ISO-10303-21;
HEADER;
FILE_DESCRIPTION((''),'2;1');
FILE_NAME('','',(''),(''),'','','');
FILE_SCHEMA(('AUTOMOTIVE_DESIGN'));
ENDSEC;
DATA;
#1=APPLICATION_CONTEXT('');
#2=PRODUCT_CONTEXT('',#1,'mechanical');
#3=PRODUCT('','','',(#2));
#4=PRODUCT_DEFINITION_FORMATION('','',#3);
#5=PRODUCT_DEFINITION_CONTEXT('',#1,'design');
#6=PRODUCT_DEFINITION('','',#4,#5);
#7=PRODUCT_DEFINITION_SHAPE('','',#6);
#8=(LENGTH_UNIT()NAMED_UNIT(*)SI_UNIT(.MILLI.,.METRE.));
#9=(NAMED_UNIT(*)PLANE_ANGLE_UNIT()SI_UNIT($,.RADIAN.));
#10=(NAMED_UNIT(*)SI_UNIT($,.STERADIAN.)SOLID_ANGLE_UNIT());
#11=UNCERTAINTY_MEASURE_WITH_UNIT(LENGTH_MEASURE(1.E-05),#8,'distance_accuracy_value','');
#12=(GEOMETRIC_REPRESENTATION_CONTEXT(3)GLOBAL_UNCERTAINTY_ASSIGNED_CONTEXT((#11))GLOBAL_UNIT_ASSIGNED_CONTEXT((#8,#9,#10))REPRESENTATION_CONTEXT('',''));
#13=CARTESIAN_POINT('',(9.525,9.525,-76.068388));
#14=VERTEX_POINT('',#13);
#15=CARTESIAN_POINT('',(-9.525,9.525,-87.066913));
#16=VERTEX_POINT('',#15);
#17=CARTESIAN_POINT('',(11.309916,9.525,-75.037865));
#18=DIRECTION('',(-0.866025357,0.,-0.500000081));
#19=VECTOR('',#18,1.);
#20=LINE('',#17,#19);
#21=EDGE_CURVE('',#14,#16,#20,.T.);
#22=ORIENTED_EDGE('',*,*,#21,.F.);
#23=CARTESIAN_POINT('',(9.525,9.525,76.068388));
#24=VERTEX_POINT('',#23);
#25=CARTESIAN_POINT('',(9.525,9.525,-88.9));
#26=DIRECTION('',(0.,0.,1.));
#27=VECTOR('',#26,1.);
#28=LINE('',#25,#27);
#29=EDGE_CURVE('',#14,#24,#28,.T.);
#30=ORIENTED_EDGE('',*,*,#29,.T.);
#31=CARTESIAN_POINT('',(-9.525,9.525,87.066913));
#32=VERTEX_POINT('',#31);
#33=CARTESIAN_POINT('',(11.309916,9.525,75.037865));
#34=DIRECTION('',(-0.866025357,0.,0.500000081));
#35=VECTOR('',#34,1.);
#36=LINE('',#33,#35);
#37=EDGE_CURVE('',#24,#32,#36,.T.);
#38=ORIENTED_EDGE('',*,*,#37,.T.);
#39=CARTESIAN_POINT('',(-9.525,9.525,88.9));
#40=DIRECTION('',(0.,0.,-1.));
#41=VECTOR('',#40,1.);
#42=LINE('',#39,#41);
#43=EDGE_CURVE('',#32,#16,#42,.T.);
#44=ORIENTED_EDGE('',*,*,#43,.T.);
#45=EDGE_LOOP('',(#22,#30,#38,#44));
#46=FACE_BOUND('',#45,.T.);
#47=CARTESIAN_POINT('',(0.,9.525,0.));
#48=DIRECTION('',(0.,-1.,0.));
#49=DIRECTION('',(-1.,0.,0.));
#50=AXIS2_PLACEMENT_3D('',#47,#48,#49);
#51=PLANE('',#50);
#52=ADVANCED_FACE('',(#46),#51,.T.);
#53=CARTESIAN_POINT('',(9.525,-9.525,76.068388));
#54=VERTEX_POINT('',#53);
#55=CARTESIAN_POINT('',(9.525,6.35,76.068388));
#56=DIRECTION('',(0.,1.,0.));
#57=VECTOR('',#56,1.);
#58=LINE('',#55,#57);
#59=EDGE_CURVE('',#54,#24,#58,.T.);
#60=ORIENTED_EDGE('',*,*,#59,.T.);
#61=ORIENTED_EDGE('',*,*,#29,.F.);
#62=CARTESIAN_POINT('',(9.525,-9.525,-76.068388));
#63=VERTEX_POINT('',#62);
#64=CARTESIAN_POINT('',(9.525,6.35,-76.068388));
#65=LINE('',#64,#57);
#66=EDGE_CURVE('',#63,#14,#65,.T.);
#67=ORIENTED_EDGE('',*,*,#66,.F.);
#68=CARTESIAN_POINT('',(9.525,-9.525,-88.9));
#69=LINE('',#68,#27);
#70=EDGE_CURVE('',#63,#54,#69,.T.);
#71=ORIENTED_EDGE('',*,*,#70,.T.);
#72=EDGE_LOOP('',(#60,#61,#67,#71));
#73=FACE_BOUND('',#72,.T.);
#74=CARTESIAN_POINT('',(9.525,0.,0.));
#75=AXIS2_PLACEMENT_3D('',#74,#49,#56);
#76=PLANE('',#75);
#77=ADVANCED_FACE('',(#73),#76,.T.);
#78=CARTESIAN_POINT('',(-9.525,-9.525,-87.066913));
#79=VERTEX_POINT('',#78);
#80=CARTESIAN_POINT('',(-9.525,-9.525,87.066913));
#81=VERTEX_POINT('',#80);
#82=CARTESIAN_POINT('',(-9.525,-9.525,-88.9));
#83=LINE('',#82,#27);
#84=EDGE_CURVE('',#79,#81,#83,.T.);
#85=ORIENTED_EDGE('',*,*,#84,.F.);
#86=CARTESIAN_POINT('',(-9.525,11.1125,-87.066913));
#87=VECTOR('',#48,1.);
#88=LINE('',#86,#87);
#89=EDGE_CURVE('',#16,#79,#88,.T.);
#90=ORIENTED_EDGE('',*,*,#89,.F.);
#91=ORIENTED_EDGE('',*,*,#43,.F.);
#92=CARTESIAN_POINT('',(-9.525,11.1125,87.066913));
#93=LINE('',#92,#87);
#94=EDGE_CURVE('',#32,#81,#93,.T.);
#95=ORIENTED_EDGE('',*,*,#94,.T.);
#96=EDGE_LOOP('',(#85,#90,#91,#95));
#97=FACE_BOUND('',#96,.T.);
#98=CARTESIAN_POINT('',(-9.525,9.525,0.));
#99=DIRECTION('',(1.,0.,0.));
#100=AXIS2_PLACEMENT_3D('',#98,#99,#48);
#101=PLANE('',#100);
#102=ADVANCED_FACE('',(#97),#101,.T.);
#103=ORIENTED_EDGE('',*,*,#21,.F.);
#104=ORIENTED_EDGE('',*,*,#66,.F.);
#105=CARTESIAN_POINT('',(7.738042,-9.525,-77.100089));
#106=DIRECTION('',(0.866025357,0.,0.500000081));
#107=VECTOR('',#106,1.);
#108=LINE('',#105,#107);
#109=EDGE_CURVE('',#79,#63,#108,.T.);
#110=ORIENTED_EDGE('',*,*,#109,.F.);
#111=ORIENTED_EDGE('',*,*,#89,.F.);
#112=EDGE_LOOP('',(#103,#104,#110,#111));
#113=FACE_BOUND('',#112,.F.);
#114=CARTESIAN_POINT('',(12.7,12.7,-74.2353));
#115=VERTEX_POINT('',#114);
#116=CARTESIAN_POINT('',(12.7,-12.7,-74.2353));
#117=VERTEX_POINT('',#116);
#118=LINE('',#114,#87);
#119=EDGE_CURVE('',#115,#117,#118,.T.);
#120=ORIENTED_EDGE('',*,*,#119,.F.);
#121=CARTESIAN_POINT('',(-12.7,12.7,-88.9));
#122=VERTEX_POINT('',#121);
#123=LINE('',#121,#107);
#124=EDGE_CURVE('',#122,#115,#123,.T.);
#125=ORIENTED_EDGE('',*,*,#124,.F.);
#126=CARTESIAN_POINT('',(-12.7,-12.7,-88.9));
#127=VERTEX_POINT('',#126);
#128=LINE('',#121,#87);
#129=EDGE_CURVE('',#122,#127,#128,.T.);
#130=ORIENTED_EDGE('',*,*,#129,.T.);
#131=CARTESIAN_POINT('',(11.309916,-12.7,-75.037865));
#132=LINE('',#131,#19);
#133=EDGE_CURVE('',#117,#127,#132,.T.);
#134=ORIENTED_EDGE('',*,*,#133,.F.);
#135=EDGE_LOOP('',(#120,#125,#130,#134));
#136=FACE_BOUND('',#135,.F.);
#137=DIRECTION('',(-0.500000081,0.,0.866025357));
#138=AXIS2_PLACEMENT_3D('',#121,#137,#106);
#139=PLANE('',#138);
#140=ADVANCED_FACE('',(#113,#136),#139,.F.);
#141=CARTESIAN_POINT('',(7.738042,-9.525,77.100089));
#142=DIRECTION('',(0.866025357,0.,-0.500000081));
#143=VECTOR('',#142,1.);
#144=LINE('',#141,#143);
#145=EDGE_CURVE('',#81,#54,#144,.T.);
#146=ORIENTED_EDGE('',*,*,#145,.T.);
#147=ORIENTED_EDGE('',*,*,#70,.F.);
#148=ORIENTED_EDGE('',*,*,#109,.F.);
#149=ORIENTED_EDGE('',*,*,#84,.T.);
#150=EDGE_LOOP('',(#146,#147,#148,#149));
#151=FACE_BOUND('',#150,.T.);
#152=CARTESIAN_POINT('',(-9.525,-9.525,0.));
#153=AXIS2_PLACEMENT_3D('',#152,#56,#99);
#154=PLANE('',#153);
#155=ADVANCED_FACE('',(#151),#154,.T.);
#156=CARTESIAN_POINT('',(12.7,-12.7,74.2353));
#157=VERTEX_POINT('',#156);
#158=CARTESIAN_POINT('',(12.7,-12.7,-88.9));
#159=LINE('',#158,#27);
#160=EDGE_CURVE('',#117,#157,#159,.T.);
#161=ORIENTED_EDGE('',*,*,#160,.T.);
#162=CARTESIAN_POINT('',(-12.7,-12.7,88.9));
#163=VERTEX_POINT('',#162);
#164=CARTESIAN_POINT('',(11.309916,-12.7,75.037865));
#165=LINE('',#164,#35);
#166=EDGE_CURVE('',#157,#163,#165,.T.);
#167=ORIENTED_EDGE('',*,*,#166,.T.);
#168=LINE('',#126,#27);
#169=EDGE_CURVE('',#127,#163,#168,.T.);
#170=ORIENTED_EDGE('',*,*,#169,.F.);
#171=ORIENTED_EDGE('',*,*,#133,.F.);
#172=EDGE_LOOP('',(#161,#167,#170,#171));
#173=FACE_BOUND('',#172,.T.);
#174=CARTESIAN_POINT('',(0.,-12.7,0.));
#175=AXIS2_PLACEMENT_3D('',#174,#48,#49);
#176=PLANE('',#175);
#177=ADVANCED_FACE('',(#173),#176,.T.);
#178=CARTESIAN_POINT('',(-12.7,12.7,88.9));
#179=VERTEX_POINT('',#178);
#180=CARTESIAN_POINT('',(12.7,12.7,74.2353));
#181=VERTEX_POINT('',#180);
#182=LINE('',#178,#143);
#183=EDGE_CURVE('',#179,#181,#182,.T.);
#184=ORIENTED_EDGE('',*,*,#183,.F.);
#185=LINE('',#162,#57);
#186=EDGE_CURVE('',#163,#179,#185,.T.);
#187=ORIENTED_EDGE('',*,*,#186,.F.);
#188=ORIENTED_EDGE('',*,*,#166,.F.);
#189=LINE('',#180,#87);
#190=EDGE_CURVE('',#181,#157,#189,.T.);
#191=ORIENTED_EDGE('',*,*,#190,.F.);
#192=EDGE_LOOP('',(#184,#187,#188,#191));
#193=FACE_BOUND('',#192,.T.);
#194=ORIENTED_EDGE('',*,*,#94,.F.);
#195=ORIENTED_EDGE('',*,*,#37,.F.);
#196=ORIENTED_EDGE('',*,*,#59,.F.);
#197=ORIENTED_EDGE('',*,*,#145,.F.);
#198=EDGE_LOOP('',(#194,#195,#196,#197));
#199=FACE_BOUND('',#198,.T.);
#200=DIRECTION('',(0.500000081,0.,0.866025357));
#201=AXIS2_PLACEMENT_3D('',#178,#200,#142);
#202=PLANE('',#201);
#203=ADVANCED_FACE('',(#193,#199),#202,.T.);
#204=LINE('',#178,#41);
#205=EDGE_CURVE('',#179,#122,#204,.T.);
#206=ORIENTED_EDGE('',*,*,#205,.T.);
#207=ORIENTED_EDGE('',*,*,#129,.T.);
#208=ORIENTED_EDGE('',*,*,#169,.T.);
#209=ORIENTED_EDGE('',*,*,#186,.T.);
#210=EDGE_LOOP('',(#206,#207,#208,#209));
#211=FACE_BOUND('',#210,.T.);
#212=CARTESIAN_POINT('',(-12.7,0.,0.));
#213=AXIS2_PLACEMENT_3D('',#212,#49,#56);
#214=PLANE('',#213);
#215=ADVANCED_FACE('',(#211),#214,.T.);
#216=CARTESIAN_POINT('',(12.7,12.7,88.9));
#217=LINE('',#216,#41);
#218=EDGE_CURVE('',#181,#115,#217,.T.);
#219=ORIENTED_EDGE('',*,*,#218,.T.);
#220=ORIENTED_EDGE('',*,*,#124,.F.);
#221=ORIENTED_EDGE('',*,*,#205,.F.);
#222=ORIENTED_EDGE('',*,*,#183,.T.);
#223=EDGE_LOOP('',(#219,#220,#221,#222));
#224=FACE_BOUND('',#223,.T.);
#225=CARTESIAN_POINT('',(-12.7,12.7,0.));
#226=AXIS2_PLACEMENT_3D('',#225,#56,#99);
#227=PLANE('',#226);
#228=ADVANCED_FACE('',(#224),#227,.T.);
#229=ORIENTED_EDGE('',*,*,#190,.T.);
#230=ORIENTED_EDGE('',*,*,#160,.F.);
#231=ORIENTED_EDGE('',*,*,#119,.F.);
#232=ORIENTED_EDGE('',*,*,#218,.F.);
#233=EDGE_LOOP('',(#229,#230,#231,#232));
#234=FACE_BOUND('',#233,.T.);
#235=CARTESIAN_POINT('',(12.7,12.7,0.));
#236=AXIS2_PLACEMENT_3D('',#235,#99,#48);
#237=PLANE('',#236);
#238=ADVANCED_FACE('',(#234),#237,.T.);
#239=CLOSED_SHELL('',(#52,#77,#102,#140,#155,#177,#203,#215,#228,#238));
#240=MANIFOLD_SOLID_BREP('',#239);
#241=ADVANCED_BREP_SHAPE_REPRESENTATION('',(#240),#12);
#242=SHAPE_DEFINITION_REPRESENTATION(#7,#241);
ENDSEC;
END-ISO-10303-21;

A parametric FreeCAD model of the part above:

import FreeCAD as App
import Part
import Sketcher
from FreeCAD import Vector
Q = App.Units.Quantity

doc = App.newDocument("Part")
params = doc.addObject("Spreadsheet::Sheet", "Params")
for row, (alias, value) in enumerate([
    ("sketch1_width", "1 in"),
    ("pad1_length", "7 in"),
    ("sketch2_width", "1 in"),
], start=1):
    params.set(f"A{row}", alias)
    params.set(f"B{row}", "=" + value)
    params.setAlias(f"B{row}", alias)

body = doc.addObject("PartDesign::Body", "Body")

# Sketch on XY plane
sketch1 = body.newObject("Sketcher::SketchObject", "Sketch")
sketch1.AttachmentSupport = (doc.getObject("XY_Plane"), [""])
sketch1.MapMode = "FlatFace"
sketch1.addGeometry([
    Part.LineSegment(Vector(-13, 13, 0), Vector(-13, -13, 0)),  # 0
    Part.LineSegment(Vector(-13, -13, 0), Vector(13, -13, 0)),  # 1
    Part.LineSegment(Vector(13, -13, 0), Vector(13, 13, 0)),  # 2
    Part.LineSegment(Vector(13, 13, 0), Vector(-13, 13, 0)),  # 3
    Part.LineSegment(Vector(-10, 10, 0), Vector(10, 10, 0)),  # 4
    Part.LineSegment(Vector(10, 10, 0), Vector(10, -10, 0)),  # 5
    Part.LineSegment(Vector(10, -10, 0), Vector(-10, -10, 0)),  # 6
    Part.LineSegment(Vector(-10, -10, 0), Vector(-10, 10, 0)),  # 7
], False)
sketch1.addConstraint([
    Sketcher.Constraint("Coincident", 0, 2, 1, 1),
    Sketcher.Constraint("Coincident", 1, 2, 2, 1),
    Sketcher.Constraint("Coincident", 2, 2, 3, 1),
    Sketcher.Constraint("Coincident", 3, 2, 0, 1),
    Sketcher.Constraint("Coincident", 4, 2, 5, 1),
    Sketcher.Constraint("Coincident", 5, 2, 6, 1),
    Sketcher.Constraint("Coincident", 6, 2, 7, 1),
    Sketcher.Constraint("Coincident", 7, 2, 4, 1),
    Sketcher.Constraint("Vertical", 0),
    Sketcher.Constraint("Horizontal", 1),
    Sketcher.Constraint("Vertical", 2),
    Sketcher.Constraint("Horizontal", 3),
    Sketcher.Constraint("Horizontal", 4),
    Sketcher.Constraint("Vertical", 5),
    Sketcher.Constraint("Horizontal", 6),
    Sketcher.Constraint("Vertical", 7),
    Sketcher.Constraint("Symmetric", 0, 2, 2, 2, -1, 1),
    Sketcher.Constraint("Symmetric", 4, 2, 6, 2, -1, 1),
    Sketcher.Constraint("Equal", 3, 0),
    Sketcher.Constraint("Equal", 6, 5),
    Sketcher.Constraint("DistanceX", 1, 1, 1, 2, Q("1 in")),
    Sketcher.Constraint("DistanceX", 4, 2, 2, 2, Q("0.125 in")),
])
sketch1.setExpression("Constraints[20]", "Params.sketch1_width")
pad1 = body.newObject("PartDesign::Pad", "Pad")
pad1.Profile = sketch1
pad1.setExpression("Length", "Params.pad1_length")
pad1.Midplane = True

# Sketch on XZ plane
sketch2 = body.newObject("Sketcher::SketchObject", "Sketch001")
sketch2.AttachmentSupport = (doc.getObject("XZ_Plane"), [""])
sketch2.MapMode = "FlatFace"
sketch2.AttachmentOffset = App.Placement(Vector(0, 0, -0.5 * 25.4), App.Rotation())
sketch2.addGeometry([
    Part.LineSegment(Vector(13, 74, 0), Vector(-13, 89, 0)),  # 0
    Part.LineSegment(Vector(-13, 89, 0), Vector(13, 89, 0)),  # 1
    Part.LineSegment(Vector(13, 89, 0), Vector(13, 74, 0)),  # 2
    Part.LineSegment(Vector(13, -89, 0), Vector(-13, -89, 0)),  # 3
    Part.LineSegment(Vector(-13, -89, 0), Vector(13, -74, 0)),  # 4
    Part.LineSegment(Vector(13, -74, 0), Vector(13, -89, 0)),  # 5
], False)
sketch2.addConstraint([
    Sketcher.Constraint("Coincident", 0, 2, 1, 1),
    Sketcher.Constraint("Coincident", 1, 2, 2, 1),
    Sketcher.Constraint("Coincident", 2, 2, 0, 1),
    Sketcher.Constraint("Coincident", 3, 2, 4, 1),
    Sketcher.Constraint("Coincident", 4, 2, 5, 1),
    Sketcher.Constraint("Coincident", 5, 2, 3, 1),
    Sketcher.Constraint("Horizontal", 1),
    Sketcher.Constraint("Vertical", 2),
    Sketcher.Constraint("Horizontal", 3),
    Sketcher.Constraint("Vertical", 5),
    Sketcher.Constraint("Symmetric", 1, 2, 3, 2, -1, 1),
    Sketcher.Constraint("Symmetric", 2, 2, 4, 2, -1),
    Sketcher.Constraint("Vertical", 0, 2, 3, 2),
    Sketcher.Constraint("Angle", 4, Q("30 deg")),
    Sketcher.Constraint("DistanceX", 1, 1, 1, 2, Q("1 in")),
    Sketcher.Constraint("DistanceY", 3, 2, 0, 2, Q("7 in")),
])
sketch2.setExpression("Constraints[14]", "Params.sketch2_width")
pocket1 = body.newObject("PartDesign::Pocket", "Pocket")
pocket1.Profile = sketch2
pocket1.Type = "ThroughAll"
pocket1.Reversed = True

doc.recompute()
